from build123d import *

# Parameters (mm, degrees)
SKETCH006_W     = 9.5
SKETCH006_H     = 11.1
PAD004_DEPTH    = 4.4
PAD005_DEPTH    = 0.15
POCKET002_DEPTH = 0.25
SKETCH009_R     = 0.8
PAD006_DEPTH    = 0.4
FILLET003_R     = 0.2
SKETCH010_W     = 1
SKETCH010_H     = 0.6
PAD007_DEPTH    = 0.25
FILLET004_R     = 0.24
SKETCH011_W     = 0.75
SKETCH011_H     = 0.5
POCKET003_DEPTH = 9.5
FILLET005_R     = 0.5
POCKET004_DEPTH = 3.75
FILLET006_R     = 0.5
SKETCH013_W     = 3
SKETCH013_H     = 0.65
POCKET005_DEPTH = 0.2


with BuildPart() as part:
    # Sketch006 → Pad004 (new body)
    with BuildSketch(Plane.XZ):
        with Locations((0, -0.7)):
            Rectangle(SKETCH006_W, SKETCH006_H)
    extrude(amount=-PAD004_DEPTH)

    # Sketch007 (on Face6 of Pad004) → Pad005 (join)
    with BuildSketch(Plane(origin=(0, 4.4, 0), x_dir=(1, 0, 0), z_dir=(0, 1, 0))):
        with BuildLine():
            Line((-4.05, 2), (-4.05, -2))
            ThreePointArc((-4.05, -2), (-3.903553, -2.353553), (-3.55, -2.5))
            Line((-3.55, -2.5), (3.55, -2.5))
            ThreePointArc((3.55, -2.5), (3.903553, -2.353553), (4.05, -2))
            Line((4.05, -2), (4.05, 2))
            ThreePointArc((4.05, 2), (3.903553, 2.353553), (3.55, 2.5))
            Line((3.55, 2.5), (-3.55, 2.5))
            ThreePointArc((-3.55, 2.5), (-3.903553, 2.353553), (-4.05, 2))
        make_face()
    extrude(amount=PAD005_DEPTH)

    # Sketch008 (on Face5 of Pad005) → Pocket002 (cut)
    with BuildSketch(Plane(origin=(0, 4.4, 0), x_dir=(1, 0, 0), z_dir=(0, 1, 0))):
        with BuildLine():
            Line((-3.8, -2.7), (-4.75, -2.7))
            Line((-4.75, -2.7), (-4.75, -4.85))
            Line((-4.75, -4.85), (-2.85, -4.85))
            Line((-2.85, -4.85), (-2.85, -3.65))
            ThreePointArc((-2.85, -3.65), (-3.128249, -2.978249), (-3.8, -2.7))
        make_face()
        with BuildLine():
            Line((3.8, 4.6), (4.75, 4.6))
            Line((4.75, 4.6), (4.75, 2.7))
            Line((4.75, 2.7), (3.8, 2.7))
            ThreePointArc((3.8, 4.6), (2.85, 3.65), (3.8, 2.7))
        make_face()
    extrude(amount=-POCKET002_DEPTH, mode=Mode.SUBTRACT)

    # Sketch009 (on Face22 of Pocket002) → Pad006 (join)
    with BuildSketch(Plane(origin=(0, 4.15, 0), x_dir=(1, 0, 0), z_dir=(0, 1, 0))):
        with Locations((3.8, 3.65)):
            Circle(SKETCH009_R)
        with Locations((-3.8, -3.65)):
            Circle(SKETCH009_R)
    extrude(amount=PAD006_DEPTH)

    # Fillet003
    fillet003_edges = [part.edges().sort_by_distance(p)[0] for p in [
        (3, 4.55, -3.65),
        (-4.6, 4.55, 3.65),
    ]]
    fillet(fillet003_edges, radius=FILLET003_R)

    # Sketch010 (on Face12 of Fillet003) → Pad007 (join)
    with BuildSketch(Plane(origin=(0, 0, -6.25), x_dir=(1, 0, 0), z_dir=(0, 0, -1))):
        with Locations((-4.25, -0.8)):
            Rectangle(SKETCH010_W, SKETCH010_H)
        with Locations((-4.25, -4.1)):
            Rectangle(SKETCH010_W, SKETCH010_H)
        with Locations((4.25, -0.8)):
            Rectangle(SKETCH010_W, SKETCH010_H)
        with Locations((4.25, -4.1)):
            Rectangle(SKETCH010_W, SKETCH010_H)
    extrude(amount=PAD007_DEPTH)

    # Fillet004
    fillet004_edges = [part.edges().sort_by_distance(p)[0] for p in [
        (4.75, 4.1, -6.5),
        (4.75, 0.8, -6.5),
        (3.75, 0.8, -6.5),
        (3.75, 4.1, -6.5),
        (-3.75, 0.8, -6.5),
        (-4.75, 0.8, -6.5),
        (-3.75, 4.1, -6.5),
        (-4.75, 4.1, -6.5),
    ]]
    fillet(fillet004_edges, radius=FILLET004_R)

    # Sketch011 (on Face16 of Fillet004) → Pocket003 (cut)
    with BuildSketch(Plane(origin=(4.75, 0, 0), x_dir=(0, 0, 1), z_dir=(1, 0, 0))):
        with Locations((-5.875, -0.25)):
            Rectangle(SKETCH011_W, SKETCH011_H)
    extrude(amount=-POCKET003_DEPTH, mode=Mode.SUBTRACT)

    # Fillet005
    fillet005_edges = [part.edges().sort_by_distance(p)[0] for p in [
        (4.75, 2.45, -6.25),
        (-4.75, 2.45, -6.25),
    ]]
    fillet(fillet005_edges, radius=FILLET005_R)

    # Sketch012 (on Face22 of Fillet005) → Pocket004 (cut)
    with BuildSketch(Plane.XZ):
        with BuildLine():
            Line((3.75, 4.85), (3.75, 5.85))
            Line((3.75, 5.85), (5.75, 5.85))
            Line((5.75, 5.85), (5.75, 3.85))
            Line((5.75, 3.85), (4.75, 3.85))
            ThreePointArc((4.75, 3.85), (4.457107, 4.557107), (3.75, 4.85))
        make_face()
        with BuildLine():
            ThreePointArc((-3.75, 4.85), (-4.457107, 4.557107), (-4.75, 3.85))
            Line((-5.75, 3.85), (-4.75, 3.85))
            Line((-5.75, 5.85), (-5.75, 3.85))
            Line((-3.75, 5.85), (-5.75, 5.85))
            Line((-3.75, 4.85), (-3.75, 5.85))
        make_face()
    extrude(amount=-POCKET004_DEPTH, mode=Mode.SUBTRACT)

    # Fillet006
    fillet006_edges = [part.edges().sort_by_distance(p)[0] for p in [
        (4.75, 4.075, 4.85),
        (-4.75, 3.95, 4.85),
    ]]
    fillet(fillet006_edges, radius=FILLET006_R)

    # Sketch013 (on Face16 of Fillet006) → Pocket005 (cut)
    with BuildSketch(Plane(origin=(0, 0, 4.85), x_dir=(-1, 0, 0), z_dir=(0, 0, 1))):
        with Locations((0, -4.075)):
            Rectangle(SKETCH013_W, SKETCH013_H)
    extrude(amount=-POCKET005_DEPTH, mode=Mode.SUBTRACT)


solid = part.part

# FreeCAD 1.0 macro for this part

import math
import FreeCAD as App
import Part
import Sketcher
Q = App.Units.Quantity


def edges_at(feature, points):
    """Names of the edges that pass closest to the given points."""
    edges = feature.Shape.Edges
    near = lambda p: min(range(len(edges)), key=lambda i: edges[i].distToShape(Part.Vertex(*p))[0])
    return sorted({f"Edge{near(p) + 1}" for p in points})


def add_polygon(sketch, points):
    """Adds a closed chain of lines whose ends are joined by coincident constraints."""
    first, n = sketch.GeometryCount, len(points)
    for a, b in zip(points, points[1:] + points[:1]):
        sketch.addGeometry(Part.LineSegment(App.Vector(*a, 0), App.Vector(*b, 0)), False)
    for i in range(n):
        sketch.addConstraint(Sketcher.Constraint("Coincident", first + i, 2, first + (i + 1) % n, 1))

doc = App.newDocument("Part")
body = doc.addObject("PartDesign::Body", "Body")

# Sketch on XZ plane
sketch1 = doc.addObject("Sketcher::SketchObject", "Sketch")
body.addObject(sketch1)
sketch1.AttachmentSupport = (doc.XZ_Plane, [""])
sketch1.MapMode = "FlatFace"
add_polygon(sketch1, [(-4.75, 4.85), (-4.75, -6.25), (4.75, -6.25), (4.75, 4.85)])  # lines 0-3
sketch1.addConstraint([
    Sketcher.Constraint("Vertical", 0),
    Sketcher.Constraint("Horizontal", 1),
    Sketcher.Constraint("Vertical", 2),
    Sketcher.Constraint("Horizontal", 3),
    Sketcher.Constraint("DistanceX", 1, 1, 1, 2, Q("9.5 mm")),
    Sketcher.Constraint("DistanceY", 0, 2, 0, 1, Q("11.1 mm")),
    Sketcher.Constraint("DistanceX", 0, 2, -1, 1, Q("4.75 mm")),
    Sketcher.Constraint("DistanceY", 0, 2, -1, 1, Q("6.25 mm")),
])
pad1 = doc.addObject("PartDesign::Pad", "Pad")
body.addObject(pad1)
pad1.Profile = sketch1
pad1.Length = 4.4
pad1.Reversed = True

# Sketch on XZ plane
sketch2 = doc.addObject("Sketcher::SketchObject", "Sketch001")
body.addObject(sketch2)
sketch2.AttachmentSupport = (doc.XZ_Plane, [""])
sketch2.MapMode = "FlatFace"
sketch2.AttachmentOffset = App.Placement(App.Vector(0, 0, -4.4), App.Rotation())
sketch2.addGeometry([
    Part.LineSegment(App.Vector(-4.05, -2, 0), App.Vector(-4.05, 2, 0)),  # 0
    Part.ArcOfCircle(Part.Circle(App.Vector(-3.549999, 1.999999, 0), App.Vector(0, 0, 1), 0.500001), math.radians(90.000153), math.radians(179.999847)),  # 1
    Part.LineSegment(App.Vector(-3.55, 2.5, 0), App.Vector(3.55, 2.5, 0)),  # 2
    Part.ArcOfCircle(Part.Circle(App.Vector(3.549999, 1.999999, 0), App.Vector(0, 0, 1), 0.500001), math.radians(0.000153), math.radians(89.999847)),  # 3
    Part.LineSegment(App.Vector(4.05, 2, 0), App.Vector(4.05, -2, 0)),  # 4
    Part.ArcOfCircle(Part.Circle(App.Vector(3.549999, -1.999999, 0), App.Vector(0, 0, 1), 0.500001), math.radians(-89.999847), math.radians(-0.000153)),  # 5
    Part.LineSegment(App.Vector(3.55, -2.5, 0), App.Vector(-3.55, -2.5, 0)),  # 6
    Part.ArcOfCircle(Part.Circle(App.Vector(-3.549999, -1.999999, 0), App.Vector(0, 0, 1), 0.500001), math.radians(-179.999847), math.radians(-90.000153)),  # 7
], False)
sketch2.addConstraint([
    Sketcher.Constraint("Coincident", 0, 2, 1, 2),
    Sketcher.Constraint("Coincident", 1, 1, 2, 1),
    Sketcher.Constraint("Coincident", 2, 2, 3, 2),
    Sketcher.Constraint("Coincident", 3, 1, 4, 1),
    Sketcher.Constraint("Coincident", 4, 2, 5, 2),
    Sketcher.Constraint("Coincident", 5, 1, 6, 1),
    Sketcher.Constraint("Coincident", 6, 2, 7, 2),
    Sketcher.Constraint("Coincident", 7, 1, 0, 1),
    Sketcher.Constraint("Vertical", 0),
    Sketcher.Constraint("Horizontal", 2),
    Sketcher.Constraint("Vertical", 4),
    Sketcher.Constraint("Horizontal", 6),
    Sketcher.Constraint("Equal", 1, 3),
    Sketcher.Constraint("Equal", 3, 5),
    Sketcher.Constraint("Equal", 5, 7),
    Sketcher.Constraint("Symmetric", 1, 3, 5, 3, -1, 1),
    Sketcher.Constraint("Horizontal", 3, 3, 0, 2),
    Sketcher.Constraint("Horizontal", 0, 2, 3, 1),
    Sketcher.Constraint("Horizontal", 7, 3, 4, 2),
    Sketcher.Constraint("Horizontal", 4, 2, 7, 1),
    Sketcher.Constraint("Vertical", 7, 3, 1, 1),
    Sketcher.Constraint("Vertical", 5, 3, 2, 2),
    Sketcher.Constraint("Vertical", 2, 2, 5, 1),
    Sketcher.Constraint("Vertical", 1, 1, 6, 2),
    Sketcher.Constraint("Radius", 1, Q("0.500001 mm")),
    Sketcher.Constraint("DistanceY", 0, 1, 0, 2, Q("4 mm")),
    Sketcher.Constraint("DistanceX", 2, 1, 2, 2, Q("7.1 mm")),
])
pad2 = doc.addObject("PartDesign::Pad", "Pad001")
body.addObject(pad2)
pad2.Profile = sketch2
pad2.Length = 0.15
pad2.Reversed = True

# Sketch on XZ plane
sketch3 = doc.addObject("Sketcher::SketchObject", "Sketch002")
body.addObject(sketch3)
sketch3.AttachmentSupport = (doc.XZ_Plane, [""])
sketch3.MapMode = "FlatFace"
sketch3.AttachmentOffset = App.Placement(App.Vector(0, 0, -4.4), App.Rotation())
sketch3.addGeometry([
    Part.LineSegment(App.Vector(-3.8, 2.7, 0), App.Vector(-4.75, 2.7, 0)),  # 0
    Part.LineSegment(App.Vector(-4.75, 2.7, 0), App.Vector(-4.75, 4.85, 0)),  # 1
    Part.LineSegment(App.Vector(-4.75, 4.85, 0), App.Vector(-2.85, 4.85, 0)),  # 2
    Part.LineSegment(App.Vector(-2.85, 4.85, 0), App.Vector(-2.85, 3.65, 0)),  # 3
    Part.ArcOfCircle(Part.Circle(App.Vector(-3.800002, 3.650002, 0), App.Vector(0, 0, 1), 0.950002), math.radians(-89.999909), math.radians(-0.000091)),  # 4
    Part.LineSegment(App.Vector(4.75, -4.6, 0), App.Vector(3.8, -4.6, 0)),  # 5
    Part.ArcOfCircle(Part.Circle(App.Vector(3.8, -3.65, 0), App.Vector(0, 0, 1), 0.95), math.radians(90), math.radians(270)),  # 6
    Part.LineSegment(App.Vector(3.8, -2.7, 0), App.Vector(4.75, -2.7, 0)),  # 7
    Part.LineSegment(App.Vector(4.75, -2.7, 0), App.Vector(4.75, -4.6, 0)),  # 8
], False)
sketch3.addConstraint([
    Sketcher.Constraint("Coincident", 0, 2, 1, 1),
    Sketcher.Constraint("Coincident", 1, 2, 2, 1),
    Sketcher.Constraint("Coincident", 2, 2, 3, 1),
    Sketcher.Constraint("Tangent", 3, 2, 4, 2),
    Sketcher.Constraint("Tangent", 4, 1, 0, 1),
    Sketcher.Constraint("Tangent", 5, 2, 6, 2),
    Sketcher.Constraint("Tangent", 6, 1, 7, 1),
    Sketcher.Constraint("Coincident", 7, 2, 8, 1),
    Sketcher.Constraint("Coincident", 8, 2, 5, 1),
    Sketcher.Constraint("Horizontal", 0),
    Sketcher.Constraint("Vertical", 1),
    Sketcher.Constraint("Horizontal", 2),
    Sketcher.Constraint("Vertical", 3),
    Sketcher.Constraint("Horizontal", 5),
    Sketcher.Constraint("Horizontal", 7),
    Sketcher.Constraint("Vertical", 8),
    Sketcher.Constraint("Equal", 4, 6),
    Sketcher.Constraint("Symmetric", 4, 3, 6, 3, -1, 1),
    Sketcher.Constraint("Equal", 0, 5),
    Sketcher.Constraint("Equal", 2, 8),
    Sketcher.Constraint("Radius", 4, Q("0.950002 mm")),
    Sketcher.Constraint("DistanceY", 3, 2, 3, 1, Q("1.2 mm")),
    Sketcher.Constraint("DistanceX", 4, 3, -1, 1, Q("3.800002 mm")),
    Sketcher.Constraint("DistanceY", -1, 1, 0, 2, Q("2.7 mm")),
])
pocket1 = doc.addObject("PartDesign::Pocket", "Pocket")
body.addObject(pocket1)
pocket1.Profile = sketch3
pocket1.Length = 0.25
pocket1.Reversed = True

# Sketch on XZ plane
sketch4 = doc.addObject("Sketcher::SketchObject", "Sketch003")
body.addObject(sketch4)
sketch4.AttachmentSupport = (doc.XZ_Plane, [""])
sketch4.MapMode = "FlatFace"
sketch4.AttachmentOffset = App.Placement(App.Vector(0, 0, -4.15), App.Rotation())
sketch4.addGeometry([
    Part.Circle(App.Vector(3.8, -3.65, 0), App.Vector(0, 0, 1), 0.8),
    Part.Circle(App.Vector(-3.8, 3.65, 0), App.Vector(0, 0, 1), 0.8),
], False)
sketch4.addConstraint([
    Sketcher.Constraint("Equal", 0, 1),
    Sketcher.Constraint("Symmetric", 0, 3, 1, 3, -1, 1),
    Sketcher.Constraint("Diameter", 0, Q("1.6 mm")),
    Sketcher.Constraint("DistanceX", -1, 1, 0, 3, Q("3.8 mm")),
    Sketcher.Constraint("DistanceY", 0, 3, 1, 3, Q("7.3 mm")),
])
pad3 = doc.addObject("PartDesign::Pad", "Pad002")
body.addObject(pad3)
pad3.Profile = sketch4
pad3.Length = 0.4
pad3.Reversed = True
doc.recompute()

fillet = doc.addObject("PartDesign::Fillet", "Fillet")
body.addObject(fillet)
fillet.Base = (pad3, edges_at(pad3, [(3, 4.55, -3.65), (-4.6, 4.55, 3.65)]))
fillet.Radius = 0.2

# Sketch on XY plane
sketch5 = doc.addObject("Sketcher::SketchObject", "Sketch004")
body.addObject(sketch5)
sketch5.AttachmentSupport = (doc.XY_Plane, [""])
sketch5.MapMode = "FlatFace"
sketch5.AttachmentOffset = App.Placement(App.Vector(0, 0, -6.25), App.Rotation())
add_polygon(sketch5, [(-4.75, 0.5), (-4.75, 1.1), (-3.75, 1.1), (-3.75, 0.5)])  # lines 0-3
add_polygon(sketch5, [(-4.75, 3.8), (-4.75, 4.4), (-3.75, 4.4), (-3.75, 3.8)])  # lines 4-7
add_polygon(sketch5, [(3.75, 0.5), (3.75, 1.1), (4.75, 1.1), (4.75, 0.5)])  # lines 8-11
add_polygon(sketch5, [(3.75, 3.8), (3.75, 4.4), (4.75, 4.4), (4.75, 3.8)])  # lines 12-15
sketch5.addConstraint([
    Sketcher.Constraint("Vertical", 0),
    Sketcher.Constraint("Horizontal", 1),
    Sketcher.Constraint("Vertical", 2),
    Sketcher.Constraint("Horizontal", 3),
    Sketcher.Constraint("Vertical", 4),
    Sketcher.Constraint("Horizontal", 5),
    Sketcher.Constraint("Vertical", 6),
    Sketcher.Constraint("Horizontal", 7),
    Sketcher.Constraint("Vertical", 8),
    Sketcher.Constraint("Horizontal", 9),
    Sketcher.Constraint("Vertical", 10),
    Sketcher.Constraint("Horizontal", 11),
    Sketcher.Constraint("Vertical", 12),
    Sketcher.Constraint("Horizontal", 13),
    Sketcher.Constraint("Vertical", 14),
    Sketcher.Constraint("Horizontal", 15),
    Sketcher.Constraint("Symmetric", 1, 2, 8, 2, -2),
    Sketcher.Constraint("Symmetric", 3, 2, 10, 2, -2),
    Sketcher.Constraint("Symmetric", 5, 2, 12, 2, -2),
    Sketcher.Constraint("Symmetric", 7, 2, 14, 2, -2),
    Sketcher.Constraint("Vertical", 3, 2, 4, 2),
    Sketcher.Constraint("Vertical", 2, 2, 5, 2),
    Sketcher.Constraint("Equal", 2, 4),
    Sketcher.Constraint("DistanceX", 1, 1, 1, 2, Q("1 mm")),
    Sketcher.Constraint("DistanceY", 0, 1, 0, 2, Q("0.6 mm")),
    Sketcher.Constraint("DistanceY", -1, 1, 0, 2, Q("1.1 mm")),
    Sketcher.Constraint("DistanceY", -1, 1, 4, 2, Q("4.4 mm")),
    Sketcher.Constraint("DistanceX", 1, 2, 8, 2, Q("7.5 mm")),
])
pad4 = doc.addObject("PartDesign::Pad", "Pad003")
body.addObject(pad4)
pad4.Profile = sketch5
pad4.Length = 0.25
pad4.Reversed = True
doc.recompute()

fillet2 = doc.addObject("PartDesign::Fillet", "Fillet001")
body.addObject(fillet2)
fillet2.Base = (pad4, edges_at(pad4, [
    (4.75, 4.1, -6.5),
    (4.75, 0.8, -6.5),
    (3.75, 0.8, -6.5),
    (3.75, 4.1, -6.5),
    (-3.75, 0.8, -6.5),
    (-4.75, 0.8, -6.5),
    (-3.75, 4.1, -6.5),
    (-4.75, 4.1, -6.5),
]))
fillet2.Radius = 0.24

# Sketch on YZ plane
sketch6 = doc.addObject("Sketcher::SketchObject", "Sketch005")
body.addObject(sketch6)
sketch6.AttachmentSupport = (doc.YZ_Plane, [""])
sketch6.MapMode = "FlatFace"
sketch6.AttachmentOffset = App.Placement(App.Vector(0, 0, 4.75), App.Rotation())
add_polygon(sketch6, [(0, -6.25), (0.5, -6.25), (0.5, -5.5), (0, -5.5)])  # lines 0-3
sketch6.addConstraint([
    Sketcher.Constraint("Horizontal", 0),
    Sketcher.Constraint("Vertical", 1),
    Sketcher.Constraint("Horizontal", 2),
    Sketcher.Constraint("Vertical", 3),
    Sketcher.Constraint("PointOnObject", 2, 2, -2),
    Sketcher.Constraint("DistanceX", 0, 1, 0, 2, Q("0.5 mm")),
    Sketcher.Constraint("DistanceY", 1, 1, 1, 2, Q("0.75 mm")),
    Sketcher.Constraint("DistanceY", 1, 2, -1, 1, Q("5.5 mm")),
])
pocket2 = doc.addObject("PartDesign::Pocket", "Pocket001")
body.addObject(pocket2)
pocket2.Profile = sketch6
pocket2.Length = 9.5
doc.recompute()

fillet3 = doc.addObject("PartDesign::Fillet", "Fillet002")
body.addObject(fillet3)
fillet3.Base = (pocket2, edges_at(pocket2, [(4.75, 2.45, -6.25), (-4.75, 2.45, -6.25)]))
fillet3.Radius = 0.5

# Sketch on XZ plane
sketch7 = doc.addObject("Sketcher::SketchObject", "Sketch006")
body.addObject(sketch7)
sketch7.AttachmentSupport = (doc.XZ_Plane, [""])
sketch7.MapMode = "FlatFace"
sketch7.addGeometry([
    Part.LineSegment(App.Vector(3.75, 5.85, 0), App.Vector(3.75, 4.85, 0)),  # 0
    Part.ArcOfCircle(Part.Circle(App.Vector(3.750001, 3.850001, 0), App.Vector(0, 0, 1), 0.999999), math.radians(-0.000043), math.radians(90.000043)),  # 1
    Part.LineSegment(App.Vector(4.75, 3.85, 0), App.Vector(5.75, 3.85, 0)),  # 2
    Part.LineSegment(App.Vector(5.75, 3.85, 0), App.Vector(5.75, 5.85, 0)),  # 3
    Part.LineSegment(App.Vector(5.75, 5.85, 0), App.Vector(3.75, 5.85, 0)),  # 4
    Part.ArcOfCircle(Part.Circle(App.Vector(-3.750001, 3.850001, 0), App.Vector(0, 0, 1), 0.999999), math.radians(89.999957), math.radians(180.000043)),  # 5
    Part.LineSegment(App.Vector(-3.75, 4.85, 0), App.Vector(-3.75, 5.85, 0)),  # 6
    Part.LineSegment(App.Vector(-3.75, 5.85, 0), App.Vector(-5.75, 5.85, 0)),  # 7
    Part.LineSegment(App.Vector(-5.75, 5.85, 0), App.Vector(-5.75, 3.85, 0)),  # 8
    Part.LineSegment(App.Vector(-5.75, 3.85, 0), App.Vector(-4.75, 3.85, 0)),  # 9
], False)
sketch7.addConstraint([
    Sketcher.Constraint("Coincident", 0, 2, 1, 2),
    Sketcher.Constraint("Coincident", 1, 1, 2, 1),
    Sketcher.Constraint("Coincident", 2, 2, 3, 1),
    Sketcher.Constraint("Coincident", 3, 2, 4, 1),
    Sketcher.Constraint("Coincident", 4, 2, 0, 1),
    Sketcher.Constraint("Coincident", 5, 1, 6, 1),
    Sketcher.Constraint("Coincident", 6, 2, 7, 1),
    Sketcher.Constraint("Coincident", 7, 2, 8, 1),
    Sketcher.Constraint("Coincident", 8, 2, 9, 1),
    Sketcher.Constraint("Coincident", 9, 2, 5, 2),
    Sketcher.Constraint("Vertical", 0),
    Sketcher.Constraint("Horizontal", 2),
    Sketcher.Constraint("Vertical", 3),
    Sketcher.Constraint("Horizontal", 4),
    Sketcher.Constraint("Vertical", 6),
    Sketcher.Constraint("Horizontal", 7),
    Sketcher.Constraint("Vertical", 8),
    Sketcher.Constraint("Horizontal", 9),
    Sketcher.Constraint("Equal", 1, 5),
    Sketcher.Constraint("Symmetric", 1, 3, 5, 3, -2),
    Sketcher.Constraint("Symmetric", 4, 2, 6, 2, -2),
    Sketcher.Constraint("Symmetric", 2, 2, 8, 2, -2),
    Sketcher.Constraint("Horizontal", 5, 3, 1, 1),
    Sketcher.Constraint("Vertical", 1, 3, 0, 2),
    Sketcher.Constraint("Equal", 9, 0),
    Sketcher.Constraint("Radius", 1, Q("0.999999 mm")),
    Sketcher.Constraint("DistanceX", 2, 1, 2, 2, Q("1 mm")),
    Sketcher.Constraint("DistanceX", 5, 3, 1, 3, Q("7.500001 mm")),
    Sketcher.Constraint("DistanceY", -1, 1, 1, 3, Q("3.850001 mm")),
])
pocket3 = doc.addObject("PartDesign::Pocket", "Pocket002")
body.addObject(pocket3)
pocket3.Profile = sketch7
pocket3.Length = 3.75
doc.recompute()

fillet4 = doc.addObject("PartDesign::Fillet", "Fillet003")
body.addObject(fillet4)
fillet4.Base = (pocket3, edges_at(pocket3, [(4.75, 4.075, 4.85), (-4.75, 3.95, 4.85)]))
fillet4.Radius = 0.5

# Sketch on XY plane
sketch8 = doc.addObject("Sketcher::SketchObject", "Sketch007")
body.addObject(sketch8)
sketch8.AttachmentSupport = (doc.XY_Plane, [""])
sketch8.MapMode = "FlatFace"
sketch8.AttachmentOffset = App.Placement(App.Vector(0, 0, 4.85), App.Rotation())
add_polygon(sketch8, [(1.5, 3.75), (1.5, 4.4), (-1.5, 4.4), (-1.5, 3.75)])  # lines 0-3
sketch8.addConstraint([
    Sketcher.Constraint("Vertical", 0),
    Sketcher.Constraint("Horizontal", 1),
    Sketcher.Constraint("Vertical", 2),
    Sketcher.Constraint("Horizontal", 3),
    Sketcher.Constraint("DistanceX", 1, 2, 1, 1, Q("3 mm")),
    Sketcher.Constraint("DistanceY", 0, 1, 0, 2, Q("0.65 mm")),
    Sketcher.Constraint("DistanceX", -1, 1, 0, 2, Q("1.5 mm")),
    Sketcher.Constraint("DistanceY", -1, 1, 0, 2, Q("4.4 mm")),
])
pocket4 = doc.addObject("PartDesign::Pocket", "Pocket003")
body.addObject(pocket4)
pocket4.Profile = sketch8
pocket4.Length = 0.2

doc.recompute()
